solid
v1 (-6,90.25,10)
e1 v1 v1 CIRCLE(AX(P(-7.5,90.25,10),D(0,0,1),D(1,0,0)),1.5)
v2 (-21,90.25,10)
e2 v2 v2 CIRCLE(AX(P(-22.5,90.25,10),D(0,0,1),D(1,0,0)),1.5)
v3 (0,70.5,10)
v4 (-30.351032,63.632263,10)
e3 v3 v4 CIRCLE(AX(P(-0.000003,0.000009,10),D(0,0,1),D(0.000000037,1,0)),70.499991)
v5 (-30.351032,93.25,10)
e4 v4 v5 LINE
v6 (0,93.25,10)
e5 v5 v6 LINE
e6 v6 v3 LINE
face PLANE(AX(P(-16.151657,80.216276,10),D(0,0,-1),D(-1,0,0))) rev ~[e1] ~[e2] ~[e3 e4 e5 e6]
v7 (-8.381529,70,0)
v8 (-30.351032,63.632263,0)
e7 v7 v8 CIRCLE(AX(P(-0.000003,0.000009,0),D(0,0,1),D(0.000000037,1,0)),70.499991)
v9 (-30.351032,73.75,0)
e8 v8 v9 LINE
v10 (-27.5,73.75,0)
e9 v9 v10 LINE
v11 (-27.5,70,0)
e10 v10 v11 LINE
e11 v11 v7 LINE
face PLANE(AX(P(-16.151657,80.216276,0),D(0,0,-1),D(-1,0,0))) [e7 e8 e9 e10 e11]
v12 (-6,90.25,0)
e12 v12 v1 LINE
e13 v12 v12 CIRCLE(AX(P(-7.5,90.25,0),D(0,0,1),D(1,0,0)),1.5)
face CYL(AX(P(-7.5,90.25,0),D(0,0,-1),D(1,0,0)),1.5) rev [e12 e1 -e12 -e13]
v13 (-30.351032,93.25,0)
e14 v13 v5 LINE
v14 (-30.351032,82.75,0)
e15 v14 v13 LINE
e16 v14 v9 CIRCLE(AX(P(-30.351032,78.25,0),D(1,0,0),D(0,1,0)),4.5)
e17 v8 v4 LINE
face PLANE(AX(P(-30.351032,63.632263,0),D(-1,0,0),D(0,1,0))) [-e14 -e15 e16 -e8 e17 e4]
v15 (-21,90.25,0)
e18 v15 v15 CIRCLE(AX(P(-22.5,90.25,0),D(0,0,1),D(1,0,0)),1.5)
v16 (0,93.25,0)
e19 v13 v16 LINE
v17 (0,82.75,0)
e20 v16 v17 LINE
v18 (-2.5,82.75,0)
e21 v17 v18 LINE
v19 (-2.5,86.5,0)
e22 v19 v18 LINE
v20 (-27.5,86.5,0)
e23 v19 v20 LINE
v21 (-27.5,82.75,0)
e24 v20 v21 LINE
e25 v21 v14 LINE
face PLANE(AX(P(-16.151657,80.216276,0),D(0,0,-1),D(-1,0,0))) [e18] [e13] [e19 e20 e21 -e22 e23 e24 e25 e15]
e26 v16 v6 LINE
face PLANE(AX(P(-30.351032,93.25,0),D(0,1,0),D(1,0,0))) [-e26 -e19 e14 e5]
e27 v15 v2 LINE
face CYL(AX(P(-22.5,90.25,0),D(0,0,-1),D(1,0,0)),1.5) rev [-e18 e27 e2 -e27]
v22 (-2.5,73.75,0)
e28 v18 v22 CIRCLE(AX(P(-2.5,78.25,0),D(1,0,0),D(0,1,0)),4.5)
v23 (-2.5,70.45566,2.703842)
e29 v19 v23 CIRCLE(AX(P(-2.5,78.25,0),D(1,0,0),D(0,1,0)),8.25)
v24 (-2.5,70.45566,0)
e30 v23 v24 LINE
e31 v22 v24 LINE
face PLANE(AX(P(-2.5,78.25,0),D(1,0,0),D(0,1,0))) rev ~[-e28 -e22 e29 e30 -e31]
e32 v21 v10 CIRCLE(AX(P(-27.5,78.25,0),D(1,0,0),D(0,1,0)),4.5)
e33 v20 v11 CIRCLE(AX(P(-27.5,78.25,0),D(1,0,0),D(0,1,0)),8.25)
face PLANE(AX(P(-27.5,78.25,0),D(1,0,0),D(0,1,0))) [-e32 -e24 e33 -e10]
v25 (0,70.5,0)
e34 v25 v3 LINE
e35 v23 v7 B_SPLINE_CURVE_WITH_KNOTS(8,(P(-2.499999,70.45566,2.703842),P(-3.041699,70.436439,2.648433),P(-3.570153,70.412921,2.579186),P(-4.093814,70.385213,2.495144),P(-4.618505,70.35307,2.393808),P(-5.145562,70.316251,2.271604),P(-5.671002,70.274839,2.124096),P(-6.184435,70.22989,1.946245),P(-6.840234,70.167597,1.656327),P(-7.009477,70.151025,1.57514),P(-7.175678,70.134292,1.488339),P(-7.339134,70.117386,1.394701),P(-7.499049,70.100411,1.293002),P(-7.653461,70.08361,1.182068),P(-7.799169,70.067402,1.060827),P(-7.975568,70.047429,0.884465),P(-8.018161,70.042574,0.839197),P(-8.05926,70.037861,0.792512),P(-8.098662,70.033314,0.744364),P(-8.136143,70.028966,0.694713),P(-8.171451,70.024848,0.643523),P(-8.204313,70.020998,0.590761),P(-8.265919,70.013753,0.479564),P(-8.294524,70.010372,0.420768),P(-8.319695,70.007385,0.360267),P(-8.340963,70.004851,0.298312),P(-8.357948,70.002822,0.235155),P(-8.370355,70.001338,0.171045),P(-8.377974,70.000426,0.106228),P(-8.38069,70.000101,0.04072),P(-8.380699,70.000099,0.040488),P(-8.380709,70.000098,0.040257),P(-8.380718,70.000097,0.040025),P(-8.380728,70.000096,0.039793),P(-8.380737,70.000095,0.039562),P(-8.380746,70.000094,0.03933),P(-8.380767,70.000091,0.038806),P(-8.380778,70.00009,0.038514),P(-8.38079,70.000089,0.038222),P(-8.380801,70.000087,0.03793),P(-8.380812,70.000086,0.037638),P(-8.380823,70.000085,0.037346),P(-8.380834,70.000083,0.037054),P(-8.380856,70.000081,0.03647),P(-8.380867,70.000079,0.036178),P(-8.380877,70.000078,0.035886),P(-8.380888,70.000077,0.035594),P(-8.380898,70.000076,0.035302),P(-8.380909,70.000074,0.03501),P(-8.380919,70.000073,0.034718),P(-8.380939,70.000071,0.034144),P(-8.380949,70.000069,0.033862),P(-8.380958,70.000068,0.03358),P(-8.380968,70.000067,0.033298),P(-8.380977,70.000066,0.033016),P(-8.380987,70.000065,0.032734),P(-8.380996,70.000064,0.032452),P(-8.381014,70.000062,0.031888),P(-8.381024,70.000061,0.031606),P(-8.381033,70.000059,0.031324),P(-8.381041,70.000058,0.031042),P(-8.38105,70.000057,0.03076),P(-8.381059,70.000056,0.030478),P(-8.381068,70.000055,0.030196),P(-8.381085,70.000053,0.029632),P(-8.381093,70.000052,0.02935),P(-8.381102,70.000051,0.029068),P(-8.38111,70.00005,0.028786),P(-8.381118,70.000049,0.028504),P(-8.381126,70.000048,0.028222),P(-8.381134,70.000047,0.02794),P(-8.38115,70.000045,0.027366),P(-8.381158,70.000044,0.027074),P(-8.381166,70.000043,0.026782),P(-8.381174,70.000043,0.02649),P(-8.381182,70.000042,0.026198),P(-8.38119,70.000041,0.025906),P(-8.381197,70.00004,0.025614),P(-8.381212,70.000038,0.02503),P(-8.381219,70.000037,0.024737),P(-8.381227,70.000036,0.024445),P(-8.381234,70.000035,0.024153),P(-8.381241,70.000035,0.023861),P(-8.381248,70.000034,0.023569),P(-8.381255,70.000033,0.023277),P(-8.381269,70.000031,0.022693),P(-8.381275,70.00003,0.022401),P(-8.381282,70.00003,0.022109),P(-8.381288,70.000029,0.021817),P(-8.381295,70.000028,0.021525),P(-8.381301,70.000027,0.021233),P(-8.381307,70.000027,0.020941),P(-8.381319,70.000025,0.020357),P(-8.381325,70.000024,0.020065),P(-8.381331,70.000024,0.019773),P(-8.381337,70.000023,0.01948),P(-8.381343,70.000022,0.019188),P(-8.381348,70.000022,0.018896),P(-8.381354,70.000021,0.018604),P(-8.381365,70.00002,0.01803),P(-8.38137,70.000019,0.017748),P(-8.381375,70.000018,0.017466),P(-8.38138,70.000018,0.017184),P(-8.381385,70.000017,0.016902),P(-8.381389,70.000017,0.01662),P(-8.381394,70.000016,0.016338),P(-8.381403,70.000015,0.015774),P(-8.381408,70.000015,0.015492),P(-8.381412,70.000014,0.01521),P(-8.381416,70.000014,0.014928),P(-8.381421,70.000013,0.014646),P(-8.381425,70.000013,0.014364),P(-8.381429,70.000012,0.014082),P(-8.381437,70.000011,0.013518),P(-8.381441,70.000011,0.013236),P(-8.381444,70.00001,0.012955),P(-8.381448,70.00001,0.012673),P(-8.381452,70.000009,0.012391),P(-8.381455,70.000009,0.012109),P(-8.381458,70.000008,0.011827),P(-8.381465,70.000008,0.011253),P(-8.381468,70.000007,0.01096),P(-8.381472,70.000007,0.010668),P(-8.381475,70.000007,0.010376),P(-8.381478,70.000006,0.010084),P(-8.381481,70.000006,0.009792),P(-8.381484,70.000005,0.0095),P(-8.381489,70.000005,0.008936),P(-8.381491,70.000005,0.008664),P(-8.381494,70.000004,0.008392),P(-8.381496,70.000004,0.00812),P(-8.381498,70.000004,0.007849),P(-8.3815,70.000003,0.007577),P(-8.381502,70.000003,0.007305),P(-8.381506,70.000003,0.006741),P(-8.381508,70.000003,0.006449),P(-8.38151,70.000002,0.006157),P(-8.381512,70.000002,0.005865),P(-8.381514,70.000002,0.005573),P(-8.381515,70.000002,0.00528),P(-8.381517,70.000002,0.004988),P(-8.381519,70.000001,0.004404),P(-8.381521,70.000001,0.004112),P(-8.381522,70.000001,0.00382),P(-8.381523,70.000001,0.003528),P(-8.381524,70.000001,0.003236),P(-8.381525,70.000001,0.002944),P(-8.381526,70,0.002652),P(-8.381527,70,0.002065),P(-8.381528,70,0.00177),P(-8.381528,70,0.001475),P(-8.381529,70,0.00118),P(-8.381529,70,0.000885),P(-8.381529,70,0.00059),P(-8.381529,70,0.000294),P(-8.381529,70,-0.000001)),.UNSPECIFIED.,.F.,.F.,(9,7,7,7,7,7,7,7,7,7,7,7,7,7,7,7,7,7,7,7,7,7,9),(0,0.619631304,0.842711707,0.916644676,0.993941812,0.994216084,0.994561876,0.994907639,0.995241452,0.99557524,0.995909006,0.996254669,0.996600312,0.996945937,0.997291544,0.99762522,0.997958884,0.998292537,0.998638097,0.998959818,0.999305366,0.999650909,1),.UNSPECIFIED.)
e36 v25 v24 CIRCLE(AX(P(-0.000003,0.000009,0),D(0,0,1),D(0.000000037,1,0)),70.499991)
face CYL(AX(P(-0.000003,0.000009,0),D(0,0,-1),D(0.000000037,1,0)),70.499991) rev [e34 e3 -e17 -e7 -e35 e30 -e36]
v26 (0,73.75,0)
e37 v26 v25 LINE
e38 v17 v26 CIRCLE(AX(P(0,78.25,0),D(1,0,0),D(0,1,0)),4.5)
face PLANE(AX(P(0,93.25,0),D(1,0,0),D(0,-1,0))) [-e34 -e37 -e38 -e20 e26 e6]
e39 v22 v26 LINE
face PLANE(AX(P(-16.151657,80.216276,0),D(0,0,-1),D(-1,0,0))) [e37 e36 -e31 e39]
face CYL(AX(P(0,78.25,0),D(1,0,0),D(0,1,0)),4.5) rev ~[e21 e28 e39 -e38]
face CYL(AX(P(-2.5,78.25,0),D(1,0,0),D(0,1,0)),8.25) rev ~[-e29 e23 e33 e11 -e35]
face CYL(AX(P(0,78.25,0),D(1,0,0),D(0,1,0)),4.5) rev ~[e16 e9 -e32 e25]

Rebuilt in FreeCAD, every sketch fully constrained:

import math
import FreeCAD as App
import Part
import Sketcher
Q = App.Units.Quantity

doc = App.newDocument("Part")
body = doc.addObject("PartDesign::Body", "Body")

sketch1 = body.newObject("Sketcher::SketchObject", "Sketch")
sketch1.AttachmentSupport = (doc.getObject("XY_Plane"), [""])
sketch1.MapMode = "FlatFace"
sketch1.addGeometry([
    Part.ArcOfCircle(Part.Circle(App.Vector(0, 0, 0), App.Vector(0, 0, 1), 70.5), math.radians(90), math.radians(116)),
    Part.LineSegment(App.Vector(0, 70.5, 0), App.Vector(0, 93.2, 0)),
    Part.LineSegment(App.Vector(0, 93.2, 0), App.Vector(-30.4, 93.2, 0)),
    Part.LineSegment(App.Vector(-30.4, 93.2, 0), App.Vector(-30.4, 63.6, 0)),
    Part.Circle(App.Vector(-7.5, 90.2, 0), App.Vector(0, 0, 1), 1.5),
    Part.Circle(App.Vector(-22.5, 90.2, 0), App.Vector(0, 0, 1), 1.5),
], False)
sketch1.addConstraint([
    Sketcher.Constraint("Coincident", 0, 1, 1, 1),
    Sketcher.Constraint("Coincident", 1, 2, 2, 1),
    Sketcher.Constraint("Coincident", 2, 2, 3, 1),
    Sketcher.Constraint("Coincident", 3, 2, 0, 2),
    Sketcher.Constraint("Vertical", 1),
    Sketcher.Constraint("Horizontal", 2),
    Sketcher.Constraint("Vertical", 3),
    Sketcher.Constraint("Coincident", 0, 3, -1, 1),
    Sketcher.Constraint("Equal", 4, 5),
    Sketcher.Constraint("PointOnObject", 0, 1, -2),
    Sketcher.Constraint("Horizontal", 4, 3, 5, 3),
    Sketcher.Constraint("Diameter", 4, Q("3 mm")),
    Sketcher.Constraint("DistanceX", 5, 3, 4, 3, Q("15 mm")),
    Sketcher.Constraint("DistanceY", 4, 3, 1, 2, Q("3 mm")),
    Sketcher.Constraint("DistanceY", 1, 1, 1, 2, Q("22.75 mm")),
    Sketcher.Constraint("DistanceX", 4, 3, -1, 1, Q("7.5 mm")),
    Sketcher.Constraint("DistanceY", -1, 1, 0, 1, Q("70.5 mm")),
    Sketcher.Constraint("DistanceX", 2, 2, 2, 1, Q("30.351032 mm")),
])
pad1 = body.newObject("PartDesign::Pad", "Pad")
pad1.Profile = sketch1
pad1.Length = 10

sketch2 = body.newObject("Sketcher::SketchObject", "Sketch001")
sketch2.AttachmentSupport = (doc.getObject("YZ_Plane"), [""])
sketch2.MapMode = "FlatFace"
sketch2.addGeometry(Part.Circle(App.Vector(78.2, 0, 0), App.Vector(0, 0, 1), 4.5), False)
sketch2.addConstraint([
    Sketcher.Constraint("PointOnObject", 0, 3, -1),
    Sketcher.Constraint("Diameter", 0, Q("9 mm")),
    Sketcher.Constraint("DistanceX", -1, 1, 0, 3, Q("78.25 mm")),
])
pocket1 = body.newObject("PartDesign::Pocket", "Pocket")
pocket1.Profile = sketch2
pocket1.Type = "ThroughAll"

sketch3 = body.newObject("Sketcher::SketchObject", "Sketch002")
sketch3.AttachmentSupport = (doc.getObject("YZ_Plane"), [""])
sketch3.MapMode = "FlatFace"
sketch3.AttachmentOffset = App.Placement(App.Vector(0, 0, -2.5), App.Rotation())
sketch3.addGeometry(Part.Circle(App.Vector(78, 0, 0), App.Vector(0, 0, 1), 8), False)
sketch3.addConstraint([
    Sketcher.Constraint("PointOnObject", 0, 3, -1),
    Sketcher.Constraint("Diameter", 0, Q("16.5 mm")),
    Sketcher.Constraint("DistanceX", -1, 1, 0, 3, Q("78.25 mm")),
])
pocket2 = body.newObject("PartDesign::Pocket", "Pocket001")
pocket2.Profile = sketch3
pocket2.Length = 25

doc.recompute()
